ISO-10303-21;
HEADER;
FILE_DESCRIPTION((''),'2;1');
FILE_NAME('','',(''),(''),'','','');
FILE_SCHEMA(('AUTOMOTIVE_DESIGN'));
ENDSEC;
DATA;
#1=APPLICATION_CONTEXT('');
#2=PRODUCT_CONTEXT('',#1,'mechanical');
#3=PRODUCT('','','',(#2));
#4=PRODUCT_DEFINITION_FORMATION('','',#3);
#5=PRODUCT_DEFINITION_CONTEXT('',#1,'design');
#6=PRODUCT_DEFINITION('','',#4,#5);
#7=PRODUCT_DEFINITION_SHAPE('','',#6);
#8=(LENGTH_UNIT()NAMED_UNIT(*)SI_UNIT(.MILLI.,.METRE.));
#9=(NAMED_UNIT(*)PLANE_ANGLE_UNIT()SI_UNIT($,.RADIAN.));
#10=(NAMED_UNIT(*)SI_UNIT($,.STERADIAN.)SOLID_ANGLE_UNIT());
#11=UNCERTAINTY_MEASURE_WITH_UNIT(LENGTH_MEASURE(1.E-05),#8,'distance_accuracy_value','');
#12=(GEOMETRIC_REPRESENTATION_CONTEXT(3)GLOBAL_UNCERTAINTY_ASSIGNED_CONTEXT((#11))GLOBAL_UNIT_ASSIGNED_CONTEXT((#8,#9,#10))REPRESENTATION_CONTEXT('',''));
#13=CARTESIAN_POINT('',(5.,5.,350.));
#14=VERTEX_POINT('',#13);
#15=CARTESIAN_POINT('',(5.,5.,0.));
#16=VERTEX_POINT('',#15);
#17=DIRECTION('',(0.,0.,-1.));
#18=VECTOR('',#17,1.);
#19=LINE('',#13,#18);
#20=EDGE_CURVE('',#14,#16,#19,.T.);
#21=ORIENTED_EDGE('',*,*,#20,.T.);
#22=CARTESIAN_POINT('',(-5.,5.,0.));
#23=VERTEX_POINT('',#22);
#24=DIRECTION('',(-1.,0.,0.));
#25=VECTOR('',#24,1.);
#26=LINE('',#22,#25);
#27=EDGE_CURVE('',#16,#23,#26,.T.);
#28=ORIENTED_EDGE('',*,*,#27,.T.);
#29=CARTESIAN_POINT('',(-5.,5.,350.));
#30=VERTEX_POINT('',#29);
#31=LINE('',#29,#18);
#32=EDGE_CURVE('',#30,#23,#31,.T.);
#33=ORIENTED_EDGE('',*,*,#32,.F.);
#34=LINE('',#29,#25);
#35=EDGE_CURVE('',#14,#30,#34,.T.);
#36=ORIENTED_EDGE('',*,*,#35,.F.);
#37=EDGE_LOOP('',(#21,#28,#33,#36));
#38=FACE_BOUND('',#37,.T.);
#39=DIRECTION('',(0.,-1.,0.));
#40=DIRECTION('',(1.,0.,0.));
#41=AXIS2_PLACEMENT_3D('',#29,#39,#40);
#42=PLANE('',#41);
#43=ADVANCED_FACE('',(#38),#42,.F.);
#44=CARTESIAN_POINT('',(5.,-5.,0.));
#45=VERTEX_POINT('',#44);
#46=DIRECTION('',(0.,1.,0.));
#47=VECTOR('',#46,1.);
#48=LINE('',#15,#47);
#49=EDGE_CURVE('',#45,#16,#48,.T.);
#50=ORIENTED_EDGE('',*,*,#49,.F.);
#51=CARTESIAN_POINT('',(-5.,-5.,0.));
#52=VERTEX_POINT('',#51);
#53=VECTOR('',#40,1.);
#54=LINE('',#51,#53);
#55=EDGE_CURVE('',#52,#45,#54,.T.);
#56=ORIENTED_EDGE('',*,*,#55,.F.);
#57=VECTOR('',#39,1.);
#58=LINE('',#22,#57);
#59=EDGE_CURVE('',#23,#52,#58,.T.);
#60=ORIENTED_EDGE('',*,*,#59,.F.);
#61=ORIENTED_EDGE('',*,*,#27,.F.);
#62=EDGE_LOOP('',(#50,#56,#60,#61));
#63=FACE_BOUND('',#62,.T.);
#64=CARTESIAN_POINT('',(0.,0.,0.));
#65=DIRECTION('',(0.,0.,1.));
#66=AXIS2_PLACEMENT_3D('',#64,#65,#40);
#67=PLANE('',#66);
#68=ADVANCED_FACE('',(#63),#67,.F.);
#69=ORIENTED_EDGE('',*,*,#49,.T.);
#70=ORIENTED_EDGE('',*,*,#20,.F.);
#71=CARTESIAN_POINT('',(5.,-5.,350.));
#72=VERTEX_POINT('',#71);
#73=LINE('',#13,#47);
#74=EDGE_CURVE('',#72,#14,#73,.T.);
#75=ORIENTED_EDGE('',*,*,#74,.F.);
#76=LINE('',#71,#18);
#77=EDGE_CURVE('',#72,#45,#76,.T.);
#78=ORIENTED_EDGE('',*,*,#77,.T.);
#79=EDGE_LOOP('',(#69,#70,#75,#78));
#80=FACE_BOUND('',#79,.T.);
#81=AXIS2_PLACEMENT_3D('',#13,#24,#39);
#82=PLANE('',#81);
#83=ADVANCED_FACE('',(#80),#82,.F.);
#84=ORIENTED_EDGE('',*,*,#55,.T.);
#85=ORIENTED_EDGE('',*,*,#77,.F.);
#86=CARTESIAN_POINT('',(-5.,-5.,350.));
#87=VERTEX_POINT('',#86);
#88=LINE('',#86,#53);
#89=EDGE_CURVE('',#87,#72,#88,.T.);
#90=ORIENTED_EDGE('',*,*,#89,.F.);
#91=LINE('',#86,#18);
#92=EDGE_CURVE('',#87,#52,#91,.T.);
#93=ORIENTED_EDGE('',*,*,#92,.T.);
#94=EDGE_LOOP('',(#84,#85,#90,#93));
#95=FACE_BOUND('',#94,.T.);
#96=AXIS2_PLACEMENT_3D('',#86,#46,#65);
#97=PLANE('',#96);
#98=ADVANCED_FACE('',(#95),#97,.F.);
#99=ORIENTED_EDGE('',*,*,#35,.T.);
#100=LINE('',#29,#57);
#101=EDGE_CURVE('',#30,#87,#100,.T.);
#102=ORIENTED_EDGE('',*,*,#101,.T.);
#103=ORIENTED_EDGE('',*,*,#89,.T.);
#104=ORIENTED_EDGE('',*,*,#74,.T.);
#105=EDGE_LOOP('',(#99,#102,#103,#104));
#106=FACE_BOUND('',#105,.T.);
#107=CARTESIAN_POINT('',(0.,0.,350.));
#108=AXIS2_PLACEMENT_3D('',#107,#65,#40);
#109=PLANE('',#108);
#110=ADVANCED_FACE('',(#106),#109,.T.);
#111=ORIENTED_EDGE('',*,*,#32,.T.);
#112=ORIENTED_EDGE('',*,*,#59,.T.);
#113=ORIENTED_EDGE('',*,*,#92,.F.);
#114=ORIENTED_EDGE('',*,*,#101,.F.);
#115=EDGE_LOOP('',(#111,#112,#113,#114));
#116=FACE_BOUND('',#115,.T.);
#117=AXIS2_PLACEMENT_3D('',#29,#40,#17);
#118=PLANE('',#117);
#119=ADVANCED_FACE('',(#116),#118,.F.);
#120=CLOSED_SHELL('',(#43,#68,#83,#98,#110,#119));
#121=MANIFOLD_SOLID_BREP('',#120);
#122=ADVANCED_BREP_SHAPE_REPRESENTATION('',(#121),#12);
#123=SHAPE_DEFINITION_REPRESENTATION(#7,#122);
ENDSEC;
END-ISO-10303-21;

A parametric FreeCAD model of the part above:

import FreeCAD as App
import Part
import Sketcher

V = App.Vector
Q = App.Units.Quantity

doc = App.newDocument("Part")
body = doc.addObject("PartDesign::Body", "Body")

sketch1 = doc.addObject("Sketcher::SketchObject", "Sketch")
body.addObject(sketch1)
sketch1.AttachmentSupport = (doc.XY_Plane, [""])
sketch1.MapMode = "FlatFace"
sketch1.addGeometry([
    Part.LineSegment(V(-5, 5, 0), V(-5, -5, 0)),
    Part.LineSegment(V(-5, -5, 0), V(5, -5, 0)),
    Part.LineSegment(V(5, -5, 0), V(5, 5, 0)),
    Part.LineSegment(V(5, 5, 0), V(-5, 5, 0)),
], False)
sketch1.addConstraint([
    Sketcher.Constraint("Coincident", 0, 2, 1, 1),
    Sketcher.Constraint("Coincident", 1, 2, 2, 1),
    Sketcher.Constraint("Coincident", 2, 2, 3, 1),
    Sketcher.Constraint("Coincident", 3, 2, 0, 1),
    Sketcher.Constraint("Vertical", 0),
    Sketcher.Constraint("Horizontal", 1),
    Sketcher.Constraint("Vertical", 2),
    Sketcher.Constraint("Horizontal", 3),
    Sketcher.Constraint("Symmetric", 0, 2, 2, 2, -1, 1),
    Sketcher.Constraint("Equal", 3, 0),
    Sketcher.Constraint("DistanceX", 1, 1, 1, 2, Q("10 mm")),
])
pad1 = doc.addObject("PartDesign::Pad", "Pad")
body.addObject(pad1)
pad1.Profile = sketch1
pad1.Length = 350

doc.recompute()
